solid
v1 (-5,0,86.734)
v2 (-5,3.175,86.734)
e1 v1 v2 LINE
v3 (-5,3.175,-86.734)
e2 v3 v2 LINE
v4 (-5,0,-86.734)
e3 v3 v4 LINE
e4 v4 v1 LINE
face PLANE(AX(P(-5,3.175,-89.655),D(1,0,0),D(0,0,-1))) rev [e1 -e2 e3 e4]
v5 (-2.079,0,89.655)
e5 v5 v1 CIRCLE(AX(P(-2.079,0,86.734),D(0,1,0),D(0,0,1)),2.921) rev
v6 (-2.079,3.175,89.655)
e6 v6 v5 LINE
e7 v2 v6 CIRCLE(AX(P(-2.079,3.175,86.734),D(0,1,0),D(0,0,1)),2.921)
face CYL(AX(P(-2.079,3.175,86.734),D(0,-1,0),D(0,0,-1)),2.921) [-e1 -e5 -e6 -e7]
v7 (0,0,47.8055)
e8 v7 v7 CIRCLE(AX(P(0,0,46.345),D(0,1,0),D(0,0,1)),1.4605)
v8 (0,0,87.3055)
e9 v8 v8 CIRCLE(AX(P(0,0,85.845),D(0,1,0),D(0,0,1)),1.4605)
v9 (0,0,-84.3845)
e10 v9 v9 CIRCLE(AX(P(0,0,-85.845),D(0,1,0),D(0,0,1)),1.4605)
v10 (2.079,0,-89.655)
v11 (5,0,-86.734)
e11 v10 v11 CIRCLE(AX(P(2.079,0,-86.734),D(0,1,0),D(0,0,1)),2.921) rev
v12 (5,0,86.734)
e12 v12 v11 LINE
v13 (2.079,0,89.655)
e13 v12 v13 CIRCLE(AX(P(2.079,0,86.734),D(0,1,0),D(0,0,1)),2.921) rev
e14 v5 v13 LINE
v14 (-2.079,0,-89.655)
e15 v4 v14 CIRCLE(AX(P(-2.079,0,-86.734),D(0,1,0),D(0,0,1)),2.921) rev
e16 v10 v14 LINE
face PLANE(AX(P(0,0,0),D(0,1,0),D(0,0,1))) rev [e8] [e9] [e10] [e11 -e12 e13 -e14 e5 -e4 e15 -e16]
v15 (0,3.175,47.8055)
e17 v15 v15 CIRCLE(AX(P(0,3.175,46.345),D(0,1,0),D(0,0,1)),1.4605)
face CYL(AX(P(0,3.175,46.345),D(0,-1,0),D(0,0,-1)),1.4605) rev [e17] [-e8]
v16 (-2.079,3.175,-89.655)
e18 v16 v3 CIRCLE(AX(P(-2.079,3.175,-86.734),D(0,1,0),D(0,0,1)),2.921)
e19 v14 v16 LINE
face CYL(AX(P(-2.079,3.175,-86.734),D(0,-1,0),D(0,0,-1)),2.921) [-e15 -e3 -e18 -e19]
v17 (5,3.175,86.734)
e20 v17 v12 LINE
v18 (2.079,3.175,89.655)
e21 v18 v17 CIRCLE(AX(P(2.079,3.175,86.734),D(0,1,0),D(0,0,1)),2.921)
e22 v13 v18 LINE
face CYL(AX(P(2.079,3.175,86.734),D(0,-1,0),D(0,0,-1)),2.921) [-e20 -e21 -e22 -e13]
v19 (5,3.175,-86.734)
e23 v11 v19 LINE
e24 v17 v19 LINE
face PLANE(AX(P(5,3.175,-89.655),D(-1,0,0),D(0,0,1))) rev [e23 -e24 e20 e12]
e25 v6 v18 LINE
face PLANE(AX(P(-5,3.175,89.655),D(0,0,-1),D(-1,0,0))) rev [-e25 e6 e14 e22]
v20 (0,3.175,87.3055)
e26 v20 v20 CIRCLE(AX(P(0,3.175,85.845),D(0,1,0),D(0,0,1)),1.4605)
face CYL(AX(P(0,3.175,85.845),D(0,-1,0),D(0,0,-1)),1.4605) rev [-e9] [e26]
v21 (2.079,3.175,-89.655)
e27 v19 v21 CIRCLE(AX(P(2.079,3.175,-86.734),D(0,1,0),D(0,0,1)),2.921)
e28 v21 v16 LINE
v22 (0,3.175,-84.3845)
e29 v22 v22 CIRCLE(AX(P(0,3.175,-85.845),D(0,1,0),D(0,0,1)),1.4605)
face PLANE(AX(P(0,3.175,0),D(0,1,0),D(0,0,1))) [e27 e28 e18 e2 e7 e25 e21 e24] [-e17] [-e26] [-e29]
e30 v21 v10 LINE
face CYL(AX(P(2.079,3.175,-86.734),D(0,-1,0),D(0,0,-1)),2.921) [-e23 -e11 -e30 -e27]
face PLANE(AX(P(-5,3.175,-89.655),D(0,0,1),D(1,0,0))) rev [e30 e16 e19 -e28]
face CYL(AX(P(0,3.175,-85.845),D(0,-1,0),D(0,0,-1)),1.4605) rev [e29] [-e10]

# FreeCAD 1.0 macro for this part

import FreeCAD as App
import Part
import Sketcher
Q = App.Units.Quantity


def edges_at(feature, points):
    """Names of the edges that pass closest to the given points."""
    edges = feature.Shape.Edges
    near = lambda p: min(range(len(edges)), key=lambda i: edges[i].distToShape(Part.Vertex(*p))[0])
    return sorted({f"Edge{near(p) + 1}" for p in points})


def add_polygon(sketch, points):
    """Adds a closed chain of lines whose ends are joined by coincident constraints."""
    first, n = sketch.GeometryCount, len(points)
    for a, b in zip(points, points[1:] + points[:1]):
        sketch.addGeometry(Part.LineSegment(App.Vector(*a, 0), App.Vector(*b, 0)), False)
    for i in range(n):
        sketch.addConstraint(Sketcher.Constraint("Coincident", first + i, 2, first + (i + 1) % n, 1))

doc = App.newDocument("Part")
body = doc.addObject("PartDesign::Body", "Body")

# Sketch on XZ plane
sketch1 = doc.addObject("Sketcher::SketchObject", "Sketch")
body.addObject(sketch1)
sketch1.AttachmentSupport = (doc.XZ_Plane, [""])
sketch1.MapMode = "FlatFace"
add_polygon(sketch1, [(-5, -89.7), (-5, 89.7), (5, 89.7), (5, -89.7)])  # lines 0-3
sketch1.addGeometry(Part.Circle(App.Vector(0, 85.8, 0), App.Vector(0, 0, 1), 1.5), False)  # 4
sketch1.addGeometry(Part.Circle(App.Vector(0, 46.3, 0), App.Vector(0, 0, 1), 1.5), False)  # 5
sketch1.addGeometry(Part.Circle(App.Vector(0, -85.8, 0), App.Vector(0, 0, 1), 1.5), False)  # 6
sketch1.addConstraint([
    Sketcher.Constraint("Vertical", 0),
    Sketcher.Constraint("Horizontal", 1),
    Sketcher.Constraint("Vertical", 2),
    Sketcher.Constraint("Horizontal", 3),
    Sketcher.Constraint("Equal", 4, 5),
    Sketcher.Constraint("Equal", 5, 6),
    Sketcher.Constraint("Symmetric", 4, 3, 6, 3, -1, 1),
    Sketcher.Constraint("Symmetric", 0, 2, 2, 2, -1, 1),
    Sketcher.Constraint("PointOnObject", 4, 3, -2),
    Sketcher.Constraint("PointOnObject", 5, 3, -2),
    Sketcher.Constraint("Diameter", 4, Q("0.115 in")),
    Sketcher.Constraint("DistanceY", 4, 3, 0, 2, Q("0.15 in")),
    Sketcher.Constraint("DistanceX", 1, 1, 1, 2, 10.0),
    Sketcher.Constraint("DistanceY", 0, 1, 0, 2, 179.31),
    Sketcher.Constraint("DistanceY", -1, 1, 5, 3, 46.345),
])
pad1 = doc.addObject("PartDesign::Pad", "Pad")
body.addObject(pad1)
pad1.Profile = sketch1
pad1.Length = Q("0.125 in")
pad1.Reversed = True
doc.recompute()

fillet = doc.addObject("PartDesign::Fillet", "Fillet")
body.addObject(fillet)
fillet.Base = (pad1, edges_at(pad1, [
    (5, 1.587, 89.655),
    (-5, 1.587, 89.655),
    (-5, 1.587, -89.655),
    (5, 1.587, -89.655),
]))
fillet.Radius = Q("0.115 in")

doc.recompute()
